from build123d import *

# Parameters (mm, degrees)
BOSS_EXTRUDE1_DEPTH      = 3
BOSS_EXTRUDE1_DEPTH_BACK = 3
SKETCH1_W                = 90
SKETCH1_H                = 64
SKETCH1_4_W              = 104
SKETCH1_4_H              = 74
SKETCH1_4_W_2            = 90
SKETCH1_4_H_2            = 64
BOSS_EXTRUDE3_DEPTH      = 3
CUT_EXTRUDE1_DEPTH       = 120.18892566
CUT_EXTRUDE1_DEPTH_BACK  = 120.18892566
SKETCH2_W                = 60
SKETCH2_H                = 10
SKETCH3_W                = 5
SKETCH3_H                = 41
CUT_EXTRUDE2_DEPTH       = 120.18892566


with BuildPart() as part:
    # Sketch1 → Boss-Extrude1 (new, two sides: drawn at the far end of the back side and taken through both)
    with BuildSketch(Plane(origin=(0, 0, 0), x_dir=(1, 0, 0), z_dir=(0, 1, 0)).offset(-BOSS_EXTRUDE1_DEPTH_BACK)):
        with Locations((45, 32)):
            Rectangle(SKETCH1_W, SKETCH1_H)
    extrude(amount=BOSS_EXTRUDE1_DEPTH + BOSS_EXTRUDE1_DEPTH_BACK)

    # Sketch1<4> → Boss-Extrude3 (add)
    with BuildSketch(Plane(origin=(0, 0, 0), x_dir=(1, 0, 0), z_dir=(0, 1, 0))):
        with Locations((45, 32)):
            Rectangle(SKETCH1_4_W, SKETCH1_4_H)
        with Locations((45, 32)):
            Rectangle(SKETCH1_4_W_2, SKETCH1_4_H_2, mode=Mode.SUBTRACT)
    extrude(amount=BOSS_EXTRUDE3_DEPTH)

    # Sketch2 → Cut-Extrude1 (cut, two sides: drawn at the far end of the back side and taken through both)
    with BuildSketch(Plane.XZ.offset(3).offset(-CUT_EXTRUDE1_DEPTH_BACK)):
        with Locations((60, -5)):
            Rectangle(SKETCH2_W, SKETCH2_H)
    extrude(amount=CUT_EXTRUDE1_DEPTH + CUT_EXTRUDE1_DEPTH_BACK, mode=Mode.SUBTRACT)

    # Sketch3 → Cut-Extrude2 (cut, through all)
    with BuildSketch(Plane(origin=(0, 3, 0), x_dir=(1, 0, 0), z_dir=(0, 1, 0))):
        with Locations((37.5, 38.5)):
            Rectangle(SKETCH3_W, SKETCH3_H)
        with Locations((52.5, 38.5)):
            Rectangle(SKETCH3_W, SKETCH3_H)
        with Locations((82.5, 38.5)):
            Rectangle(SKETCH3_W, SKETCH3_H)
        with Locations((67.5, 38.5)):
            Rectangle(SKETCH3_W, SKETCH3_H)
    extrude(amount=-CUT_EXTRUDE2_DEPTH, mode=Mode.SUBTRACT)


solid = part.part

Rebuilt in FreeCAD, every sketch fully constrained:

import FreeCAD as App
import Part
import Sketcher
Q = App.Units.Quantity


def add_polygon(sketch, points):
    """Adds a closed chain of lines whose ends are joined by coincident constraints."""
    first, n = sketch.GeometryCount, len(points)
    for a, b in zip(points, points[1:] + points[:1]):
        sketch.addGeometry(Part.LineSegment(App.Vector(*a, 0), App.Vector(*b, 0)), False)
    for i in range(n):
        sketch.addConstraint(Sketcher.Constraint("Coincident", first + i, 2, first + (i + 1) % n, 1))

doc = App.newDocument("Part")
body = doc.addObject("PartDesign::Body", "Body")

sketch1 = body.newObject("Sketcher::SketchObject", "Sketch")
sketch1.AttachmentSupport = (doc.getObject("XZ_Plane"), [""])
sketch1.MapMode = "FlatFace"
add_polygon(sketch1, [(0, -64), (0, 0), (90, 0), (90, -64)])
sketch1.addConstraint([
    Sketcher.Constraint("Vertical", 0),
    Sketcher.Constraint("Horizontal", 1),
    Sketcher.Constraint("Vertical", 2),
    Sketcher.Constraint("Horizontal", 3),
    Sketcher.Constraint("Coincident", 0, 2, -1, 1),
    Sketcher.Constraint("DistanceX", 1, 1, 1, 2, Q("90 mm")),
    Sketcher.Constraint("DistanceY", 0, 1, 0, 2, Q("64 mm")),
])
pad1 = body.newObject("PartDesign::Pad", "Pad")
pad1.Profile = sketch1
pad1.Type = "TwoLengths"
pad1.Length = 3
pad1.Length2 = 3
pad1.Reversed = True

sketch2 = body.newObject("Sketcher::SketchObject", "Sketch001")
sketch2.AttachmentSupport = (doc.getObject("XZ_Plane"), [""])
sketch2.MapMode = "FlatFace"
add_polygon(sketch2, [(-7, -69), (-7, 5), (97, 5), (97, -69)])
add_polygon(sketch2, [(90, 0), (0, 0), (0, -64), (90, -64)])
sketch2.addConstraint([
    Sketcher.Constraint("Vertical", 0),
    Sketcher.Constraint("Horizontal", 1),
    Sketcher.Constraint("Vertical", 2),
    Sketcher.Constraint("Horizontal", 3),
    Sketcher.Constraint("Horizontal", 4),
    Sketcher.Constraint("Vertical", 5),
    Sketcher.Constraint("Horizontal", 6),
    Sketcher.Constraint("Vertical", 7),
    Sketcher.Constraint("Coincident", 4, 2, -1, 1),
    Sketcher.Constraint("DistanceX", 1, 1, 1, 2, Q("104 mm")),
    Sketcher.Constraint("DistanceX", 4, 2, 4, 1, Q("90 mm")),
    Sketcher.Constraint("DistanceY", 0, 1, 0, 2, Q("74 mm")),
    Sketcher.Constraint("DistanceY", 5, 2, 5, 1, Q("64 mm")),
    Sketcher.Constraint("DistanceX", 0, 2, -1, 1, Q("7 mm")),
    Sketcher.Constraint("DistanceY", -1, 1, 0, 2, Q("5 mm")),
])
pad2 = body.newObject("PartDesign::Pad", "Pad001")
pad2.Profile = sketch2
pad2.Length = 3
pad2.Reversed = True

sketch3 = body.newObject("Sketcher::SketchObject", "Sketch002")
sketch3.AttachmentSupport = (doc.getObject("XZ_Plane"), [""])
sketch3.MapMode = "FlatFace"
sketch3.AttachmentOffset = App.Placement(App.Vector(0, 0, 3), App.Rotation())
add_polygon(sketch3, [(30, 0), (30, -10), (90, -10), (90, 0)])
sketch3.addConstraint([
    Sketcher.Constraint("Vertical", 0),
    Sketcher.Constraint("Horizontal", 1),
    Sketcher.Constraint("Vertical", 2),
    Sketcher.Constraint("Horizontal", 3),
    Sketcher.Constraint("PointOnObject", 2, 2, -1),
    Sketcher.Constraint("DistanceX", 1, 1, 1, 2, Q("60 mm")),
    Sketcher.Constraint("DistanceY", 0, 2, 0, 1, Q("10 mm")),
    Sketcher.Constraint("DistanceX", -1, 1, 0, 2, Q("30 mm")),
])
pocket1 = body.newObject("PartDesign::Pocket", "Pocket")
pocket1.Profile = sketch3
pocket1.Type = "ThroughAll"
pocket1.Midplane = True

sketch4 = body.newObject("Sketcher::SketchObject", "Sketch003")
sketch4.AttachmentSupport = (doc.getObject("XZ_Plane"), [""])
sketch4.MapMode = "FlatFace"
sketch4.AttachmentOffset = App.Placement(App.Vector(0, 0, -3), App.Rotation())
add_polygon(sketch4, [(35, -59), (35, -18), (40, -18), (40, -59)])
add_polygon(sketch4, [(50, -59), (50, -18), (55, -18), (55, -59)])
add_polygon(sketch4, [(80, -59), (80, -18), (85, -18), (85, -59)])
add_polygon(sketch4, [(65, -59), (65, -18), (70, -18), (70, -59)])
sketch4.addConstraint([
    Sketcher.Constraint("Vertical", 0),
    Sketcher.Constraint("Horizontal", 1),
    Sketcher.Constraint("Vertical", 2),
    Sketcher.Constraint("Horizontal", 3),
    Sketcher.Constraint("Vertical", 4),
    Sketcher.Constraint("Horizontal", 5),
    Sketcher.Constraint("Vertical", 6),
    Sketcher.Constraint("Horizontal", 7),
    Sketcher.Constraint("Vertical", 8),
    Sketcher.Constraint("Horizontal", 9),
    Sketcher.Constraint("Vertical", 10),
    Sketcher.Constraint("Horizontal", 11),
    Sketcher.Constraint("Vertical", 12),
    Sketcher.Constraint("Horizontal", 13),
    Sketcher.Constraint("Vertical", 14),
    Sketcher.Constraint("Horizontal", 15),
    Sketcher.Constraint("Horizontal", 1, 2, 4, 2),
    Sketcher.Constraint("Horizontal", 3, 2, 6, 2),
    Sketcher.Constraint("Horizontal", 5, 2, 8, 2),
    Sketcher.Constraint("Horizontal", 7, 2, 10, 2),
    Sketcher.Constraint("Horizontal", 9, 2, 12, 2),
    Sketcher.Constraint("Horizontal", 11, 2, 14, 2),
    Sketcher.Constraint("Equal", 3, 5),
    Sketcher.Constraint("Equal", 7, 9),
    Sketcher.Constraint("Equal", 11, 13),
    Sketcher.Constraint("DistanceX", 1, 1, 1, 2, Q("5 mm")),
    Sketcher.Constraint("DistanceY", 0, 1, 0, 2, Q("41 mm")),
    Sketcher.Constraint("DistanceX", -1, 1, 0, 2, Q("35 mm")),
    Sketcher.Constraint("DistanceY", 0, 2, -1, 1, Q("18 mm")),
    Sketcher.Constraint("DistanceX", -1, 1, 4, 2, Q("50 mm")),
    Sketcher.Constraint("DistanceX", -1, 1, 8, 2, Q("80 mm")),
    Sketcher.Constraint("DistanceX", -1, 1, 12, 2, Q("65 mm")),
])
pocket2 = body.newObject("PartDesign::Pocket", "Pocket001")
pocket2.Profile = sketch4
pocket2.Type = "ThroughAll"
pocket2.Reversed = True

doc.recompute()
